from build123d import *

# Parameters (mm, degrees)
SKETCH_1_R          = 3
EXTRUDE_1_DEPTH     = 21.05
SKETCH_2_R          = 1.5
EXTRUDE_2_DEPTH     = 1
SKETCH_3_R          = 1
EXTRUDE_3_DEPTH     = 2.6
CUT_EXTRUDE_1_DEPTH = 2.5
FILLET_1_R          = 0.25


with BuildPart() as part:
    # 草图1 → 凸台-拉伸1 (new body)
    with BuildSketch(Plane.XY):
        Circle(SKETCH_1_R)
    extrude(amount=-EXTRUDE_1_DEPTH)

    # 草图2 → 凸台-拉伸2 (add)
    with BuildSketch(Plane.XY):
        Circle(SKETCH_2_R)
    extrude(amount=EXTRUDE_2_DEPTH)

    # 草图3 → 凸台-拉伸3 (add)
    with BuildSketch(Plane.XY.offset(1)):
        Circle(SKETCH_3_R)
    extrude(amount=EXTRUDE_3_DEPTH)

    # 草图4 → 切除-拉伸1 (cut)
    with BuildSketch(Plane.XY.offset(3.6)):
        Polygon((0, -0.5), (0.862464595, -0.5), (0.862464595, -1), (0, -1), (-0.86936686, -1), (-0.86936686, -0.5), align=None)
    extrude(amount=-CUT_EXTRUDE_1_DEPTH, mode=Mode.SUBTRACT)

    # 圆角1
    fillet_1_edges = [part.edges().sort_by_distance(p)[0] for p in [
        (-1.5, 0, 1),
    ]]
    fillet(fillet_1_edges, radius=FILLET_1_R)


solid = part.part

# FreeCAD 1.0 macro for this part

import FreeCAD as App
import Part
import Sketcher

V = App.Vector


def edges_at(feature, points):
    """Names of the edges that pass closest to the given points."""
    edges = feature.Shape.Edges
    near = lambda p: min(range(len(edges)), key=lambda i: edges[i].distToShape(Part.Vertex(*p))[0])
    return sorted({f"Edge{near(p) + 1}" for p in points})

doc = App.newDocument("Part")
body = doc.addObject("PartDesign::Body", "Body")

# Sketch on XY plane
sketch1 = body.newObject("Sketcher::SketchObject", "Sketch")
sketch1.AttachmentSupport = (doc.getObject("XY_Plane"), [""])
sketch1.MapMode = "FlatFace"
sketch1.addGeometry(Part.Circle(V(0, 0, 0), V(0, 0, 1), 3), False)
sketch1.addConstraint(Sketcher.Constraint("Coincident", 0, 3, -1, 1))
sketch1.addConstraint(Sketcher.Constraint("Diameter", 0, 6.0))
pad1 = body.newObject("PartDesign::Pad", "Pad")
pad1.Profile = sketch1
pad1.Length = 21.05
pad1.Reversed = True

# Sketch on XY plane
sketch2 = body.newObject("Sketcher::SketchObject", "Sketch001")
sketch2.AttachmentSupport = (doc.getObject("XY_Plane"), [""])
sketch2.MapMode = "FlatFace"
sketch2.addGeometry(Part.Circle(V(0, 0, 0), V(0, 0, 1), 1.5), False)
sketch2.addConstraint(Sketcher.Constraint("Coincident", 0, 3, -1, 1))
sketch2.addConstraint(Sketcher.Constraint("Diameter", 0, 3.0))
pad2 = body.newObject("PartDesign::Pad", "Pad001")
pad2.Profile = sketch2
pad2.Length = 1

# Sketch on XY plane
sketch3 = body.newObject("Sketcher::SketchObject", "Sketch002")
sketch3.AttachmentSupport = (doc.getObject("XY_Plane"), [""])
sketch3.MapMode = "FlatFace"
sketch3.AttachmentOffset = App.Placement(V(0, 0, 1), App.Rotation())
sketch3.addGeometry(Part.Circle(V(0, 0, 0), V(0, 0, 1), 1), False)
sketch3.addConstraint(Sketcher.Constraint("Coincident", 0, 3, -1, 1))
sketch3.addConstraint(Sketcher.Constraint("Diameter", 0, 2.0))
pad3 = body.newObject("PartDesign::Pad", "Pad002")
pad3.Profile = sketch3
pad3.Length = 2.6

# Sketch on XY plane
sketch4 = body.newObject("Sketcher::SketchObject", "Sketch003")
sketch4.AttachmentSupport = (doc.getObject("XY_Plane"), [""])
sketch4.MapMode = "FlatFace"
sketch4.AttachmentOffset = App.Placement(V(0, 0, 3.6), App.Rotation())
sketch4.addGeometry(Part.LineSegment(V(0.9, -0.5, 0), V(-0.9, -0.5, 0)), False)
sketch4.addGeometry(Part.LineSegment(V(-0.9, -0.5, 0), V(-0.9, -1, 0)), False)
sketch4.addGeometry(Part.LineSegment(V(-0.9, -1, 0), V(0.9, -1, 0)), False)
sketch4.addGeometry(Part.LineSegment(V(0.9, -1, 0), V(0.9, -0.5, 0)), False)
sketch4.addConstraint(Sketcher.Constraint("Coincident", 0, 2, 1, 1))
sketch4.addConstraint(Sketcher.Constraint("Coincident", 1, 2, 2, 1))
sketch4.addConstraint(Sketcher.Constraint("Coincident", 2, 2, 3, 1))
sketch4.addConstraint(Sketcher.Constraint("Coincident", 3, 2, 0, 1))
sketch4.addConstraint(Sketcher.Constraint("Horizontal", 0))
sketch4.addConstraint(Sketcher.Constraint("Vertical", 1))
sketch4.addConstraint(Sketcher.Constraint("Horizontal", 2))
sketch4.addConstraint(Sketcher.Constraint("Vertical", 3))
sketch4.addConstraint(Sketcher.Constraint("DistanceY", 1, 2, 1, 1, 0.5))
sketch4.addConstraint(Sketcher.Constraint("DistanceY", 1, 2, -1, 1, 1.0))
sketch4.addConstraint(Sketcher.Constraint("DistanceX", 0, 2, 0, 1, 1.731831))
sketch4.addConstraint(Sketcher.Constraint("DistanceX", 0, 2, -1, 1, 0.869367))
pocket1 = body.newObject("PartDesign::Pocket", "Pocket")
pocket1.Profile = sketch4
pocket1.Length = 2.5
doc.recompute()

fillet = body.newObject("PartDesign::Fillet", "Fillet")
fillet.Base = (pocket1, edges_at(pocket1, [(-1.5, 0, 1)]))
fillet.Radius = 0.25

doc.recompute()
